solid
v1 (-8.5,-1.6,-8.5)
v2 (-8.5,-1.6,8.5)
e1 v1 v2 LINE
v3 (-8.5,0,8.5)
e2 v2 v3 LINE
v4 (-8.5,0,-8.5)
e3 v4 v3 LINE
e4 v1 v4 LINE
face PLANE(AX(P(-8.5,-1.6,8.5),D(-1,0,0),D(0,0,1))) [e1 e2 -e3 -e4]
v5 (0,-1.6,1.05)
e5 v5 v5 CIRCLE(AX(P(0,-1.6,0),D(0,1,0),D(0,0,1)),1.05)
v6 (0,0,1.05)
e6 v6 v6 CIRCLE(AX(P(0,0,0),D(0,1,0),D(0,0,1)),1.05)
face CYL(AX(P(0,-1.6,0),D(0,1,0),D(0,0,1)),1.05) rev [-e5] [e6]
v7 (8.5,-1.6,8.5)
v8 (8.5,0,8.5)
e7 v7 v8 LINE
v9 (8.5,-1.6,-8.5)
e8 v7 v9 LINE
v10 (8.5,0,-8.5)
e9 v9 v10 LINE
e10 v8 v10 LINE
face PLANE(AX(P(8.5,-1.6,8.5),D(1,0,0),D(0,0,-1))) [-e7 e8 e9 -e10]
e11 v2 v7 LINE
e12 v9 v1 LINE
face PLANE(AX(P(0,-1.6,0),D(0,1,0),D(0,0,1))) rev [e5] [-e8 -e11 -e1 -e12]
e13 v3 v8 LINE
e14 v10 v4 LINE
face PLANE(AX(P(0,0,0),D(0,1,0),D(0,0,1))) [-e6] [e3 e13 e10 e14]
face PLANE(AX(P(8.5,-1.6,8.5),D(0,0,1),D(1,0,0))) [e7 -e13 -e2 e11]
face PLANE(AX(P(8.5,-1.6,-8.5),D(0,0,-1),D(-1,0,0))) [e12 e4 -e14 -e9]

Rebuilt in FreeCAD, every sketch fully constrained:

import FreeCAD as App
import Part
import Sketcher

V = App.Vector

doc = App.newDocument("Part")
params = doc.addObject("Spreadsheet::Sheet", "Params")
for row, (alias, value) in enumerate([
    ("sketch1_width", "17 mm"),
    ("pad1_length", "1.6 mm"),
    ("sketch2_diameter", "2.1 mm"),
], start=1):
    params.set(f"A{row}", alias)
    params.set(f"B{row}", "=" + value)
    params.setAlias(f"B{row}", alias)

body = doc.addObject("PartDesign::Body", "Body")

# Sketch on XZ plane
sketch1 = doc.addObject("Sketcher::SketchObject", "Sketch")
body.addObject(sketch1)
sketch1.AttachmentSupport = (doc.XZ_Plane, [""])
sketch1.MapMode = "FlatFace"
sketch1.addGeometry([
    Part.LineSegment(V(-8, -8, 0), V(-8, 8, 0)),
    Part.LineSegment(V(-8, 8, 0), V(8, 8, 0)),
    Part.LineSegment(V(8, 8, 0), V(8, -8, 0)),
    Part.LineSegment(V(8, -8, 0), V(-8, -8, 0)),
], False)
sketch1.addConstraint([
    Sketcher.Constraint("Coincident", 0, 2, 1, 1),
    Sketcher.Constraint("Coincident", 1, 2, 2, 1),
    Sketcher.Constraint("Coincident", 2, 2, 3, 1),
    Sketcher.Constraint("Coincident", 3, 2, 0, 1),
    Sketcher.Constraint("Vertical", 0),
    Sketcher.Constraint("Horizontal", 1),
    Sketcher.Constraint("Vertical", 2),
    Sketcher.Constraint("Horizontal", 3),
    Sketcher.Constraint("Symmetric", 0, 2, 2, 2, -1, 1),
    Sketcher.Constraint("Equal", 3, 0),
    Sketcher.Constraint("DistanceX", 1, 1, 1, 2, 17.0),
])
sketch1.setExpression("Constraints[10]", "Params.sketch1_width")
pad1 = doc.addObject("PartDesign::Pad", "Pad")
body.addObject(pad1)
pad1.Profile = sketch1
pad1.setExpression("Length", "Params.pad1_length")

# Sketch on XZ plane
sketch2 = doc.addObject("Sketcher::SketchObject", "Sketch001")
body.addObject(sketch2)
sketch2.AttachmentSupport = (doc.XZ_Plane, [""])
sketch2.MapMode = "FlatFace"
sketch2.addGeometry(Part.Circle(V(0, 0, 0), V(0, 0, 1), 1.1), False)
sketch2.addConstraint([
    Sketcher.Constraint("Coincident", 0, 3, -1, 1),
    Sketcher.Constraint("Diameter", 0, 2.1),
])
sketch2.setExpression("Constraints[1]", "Params.sketch2_diameter")
pocket1 = doc.addObject("PartDesign::Pocket", "Pocket")
body.addObject(pocket1)
pocket1.Profile = sketch2
pocket1.Type = "ThroughAll"
pocket1.Reversed = True

doc.recompute()
